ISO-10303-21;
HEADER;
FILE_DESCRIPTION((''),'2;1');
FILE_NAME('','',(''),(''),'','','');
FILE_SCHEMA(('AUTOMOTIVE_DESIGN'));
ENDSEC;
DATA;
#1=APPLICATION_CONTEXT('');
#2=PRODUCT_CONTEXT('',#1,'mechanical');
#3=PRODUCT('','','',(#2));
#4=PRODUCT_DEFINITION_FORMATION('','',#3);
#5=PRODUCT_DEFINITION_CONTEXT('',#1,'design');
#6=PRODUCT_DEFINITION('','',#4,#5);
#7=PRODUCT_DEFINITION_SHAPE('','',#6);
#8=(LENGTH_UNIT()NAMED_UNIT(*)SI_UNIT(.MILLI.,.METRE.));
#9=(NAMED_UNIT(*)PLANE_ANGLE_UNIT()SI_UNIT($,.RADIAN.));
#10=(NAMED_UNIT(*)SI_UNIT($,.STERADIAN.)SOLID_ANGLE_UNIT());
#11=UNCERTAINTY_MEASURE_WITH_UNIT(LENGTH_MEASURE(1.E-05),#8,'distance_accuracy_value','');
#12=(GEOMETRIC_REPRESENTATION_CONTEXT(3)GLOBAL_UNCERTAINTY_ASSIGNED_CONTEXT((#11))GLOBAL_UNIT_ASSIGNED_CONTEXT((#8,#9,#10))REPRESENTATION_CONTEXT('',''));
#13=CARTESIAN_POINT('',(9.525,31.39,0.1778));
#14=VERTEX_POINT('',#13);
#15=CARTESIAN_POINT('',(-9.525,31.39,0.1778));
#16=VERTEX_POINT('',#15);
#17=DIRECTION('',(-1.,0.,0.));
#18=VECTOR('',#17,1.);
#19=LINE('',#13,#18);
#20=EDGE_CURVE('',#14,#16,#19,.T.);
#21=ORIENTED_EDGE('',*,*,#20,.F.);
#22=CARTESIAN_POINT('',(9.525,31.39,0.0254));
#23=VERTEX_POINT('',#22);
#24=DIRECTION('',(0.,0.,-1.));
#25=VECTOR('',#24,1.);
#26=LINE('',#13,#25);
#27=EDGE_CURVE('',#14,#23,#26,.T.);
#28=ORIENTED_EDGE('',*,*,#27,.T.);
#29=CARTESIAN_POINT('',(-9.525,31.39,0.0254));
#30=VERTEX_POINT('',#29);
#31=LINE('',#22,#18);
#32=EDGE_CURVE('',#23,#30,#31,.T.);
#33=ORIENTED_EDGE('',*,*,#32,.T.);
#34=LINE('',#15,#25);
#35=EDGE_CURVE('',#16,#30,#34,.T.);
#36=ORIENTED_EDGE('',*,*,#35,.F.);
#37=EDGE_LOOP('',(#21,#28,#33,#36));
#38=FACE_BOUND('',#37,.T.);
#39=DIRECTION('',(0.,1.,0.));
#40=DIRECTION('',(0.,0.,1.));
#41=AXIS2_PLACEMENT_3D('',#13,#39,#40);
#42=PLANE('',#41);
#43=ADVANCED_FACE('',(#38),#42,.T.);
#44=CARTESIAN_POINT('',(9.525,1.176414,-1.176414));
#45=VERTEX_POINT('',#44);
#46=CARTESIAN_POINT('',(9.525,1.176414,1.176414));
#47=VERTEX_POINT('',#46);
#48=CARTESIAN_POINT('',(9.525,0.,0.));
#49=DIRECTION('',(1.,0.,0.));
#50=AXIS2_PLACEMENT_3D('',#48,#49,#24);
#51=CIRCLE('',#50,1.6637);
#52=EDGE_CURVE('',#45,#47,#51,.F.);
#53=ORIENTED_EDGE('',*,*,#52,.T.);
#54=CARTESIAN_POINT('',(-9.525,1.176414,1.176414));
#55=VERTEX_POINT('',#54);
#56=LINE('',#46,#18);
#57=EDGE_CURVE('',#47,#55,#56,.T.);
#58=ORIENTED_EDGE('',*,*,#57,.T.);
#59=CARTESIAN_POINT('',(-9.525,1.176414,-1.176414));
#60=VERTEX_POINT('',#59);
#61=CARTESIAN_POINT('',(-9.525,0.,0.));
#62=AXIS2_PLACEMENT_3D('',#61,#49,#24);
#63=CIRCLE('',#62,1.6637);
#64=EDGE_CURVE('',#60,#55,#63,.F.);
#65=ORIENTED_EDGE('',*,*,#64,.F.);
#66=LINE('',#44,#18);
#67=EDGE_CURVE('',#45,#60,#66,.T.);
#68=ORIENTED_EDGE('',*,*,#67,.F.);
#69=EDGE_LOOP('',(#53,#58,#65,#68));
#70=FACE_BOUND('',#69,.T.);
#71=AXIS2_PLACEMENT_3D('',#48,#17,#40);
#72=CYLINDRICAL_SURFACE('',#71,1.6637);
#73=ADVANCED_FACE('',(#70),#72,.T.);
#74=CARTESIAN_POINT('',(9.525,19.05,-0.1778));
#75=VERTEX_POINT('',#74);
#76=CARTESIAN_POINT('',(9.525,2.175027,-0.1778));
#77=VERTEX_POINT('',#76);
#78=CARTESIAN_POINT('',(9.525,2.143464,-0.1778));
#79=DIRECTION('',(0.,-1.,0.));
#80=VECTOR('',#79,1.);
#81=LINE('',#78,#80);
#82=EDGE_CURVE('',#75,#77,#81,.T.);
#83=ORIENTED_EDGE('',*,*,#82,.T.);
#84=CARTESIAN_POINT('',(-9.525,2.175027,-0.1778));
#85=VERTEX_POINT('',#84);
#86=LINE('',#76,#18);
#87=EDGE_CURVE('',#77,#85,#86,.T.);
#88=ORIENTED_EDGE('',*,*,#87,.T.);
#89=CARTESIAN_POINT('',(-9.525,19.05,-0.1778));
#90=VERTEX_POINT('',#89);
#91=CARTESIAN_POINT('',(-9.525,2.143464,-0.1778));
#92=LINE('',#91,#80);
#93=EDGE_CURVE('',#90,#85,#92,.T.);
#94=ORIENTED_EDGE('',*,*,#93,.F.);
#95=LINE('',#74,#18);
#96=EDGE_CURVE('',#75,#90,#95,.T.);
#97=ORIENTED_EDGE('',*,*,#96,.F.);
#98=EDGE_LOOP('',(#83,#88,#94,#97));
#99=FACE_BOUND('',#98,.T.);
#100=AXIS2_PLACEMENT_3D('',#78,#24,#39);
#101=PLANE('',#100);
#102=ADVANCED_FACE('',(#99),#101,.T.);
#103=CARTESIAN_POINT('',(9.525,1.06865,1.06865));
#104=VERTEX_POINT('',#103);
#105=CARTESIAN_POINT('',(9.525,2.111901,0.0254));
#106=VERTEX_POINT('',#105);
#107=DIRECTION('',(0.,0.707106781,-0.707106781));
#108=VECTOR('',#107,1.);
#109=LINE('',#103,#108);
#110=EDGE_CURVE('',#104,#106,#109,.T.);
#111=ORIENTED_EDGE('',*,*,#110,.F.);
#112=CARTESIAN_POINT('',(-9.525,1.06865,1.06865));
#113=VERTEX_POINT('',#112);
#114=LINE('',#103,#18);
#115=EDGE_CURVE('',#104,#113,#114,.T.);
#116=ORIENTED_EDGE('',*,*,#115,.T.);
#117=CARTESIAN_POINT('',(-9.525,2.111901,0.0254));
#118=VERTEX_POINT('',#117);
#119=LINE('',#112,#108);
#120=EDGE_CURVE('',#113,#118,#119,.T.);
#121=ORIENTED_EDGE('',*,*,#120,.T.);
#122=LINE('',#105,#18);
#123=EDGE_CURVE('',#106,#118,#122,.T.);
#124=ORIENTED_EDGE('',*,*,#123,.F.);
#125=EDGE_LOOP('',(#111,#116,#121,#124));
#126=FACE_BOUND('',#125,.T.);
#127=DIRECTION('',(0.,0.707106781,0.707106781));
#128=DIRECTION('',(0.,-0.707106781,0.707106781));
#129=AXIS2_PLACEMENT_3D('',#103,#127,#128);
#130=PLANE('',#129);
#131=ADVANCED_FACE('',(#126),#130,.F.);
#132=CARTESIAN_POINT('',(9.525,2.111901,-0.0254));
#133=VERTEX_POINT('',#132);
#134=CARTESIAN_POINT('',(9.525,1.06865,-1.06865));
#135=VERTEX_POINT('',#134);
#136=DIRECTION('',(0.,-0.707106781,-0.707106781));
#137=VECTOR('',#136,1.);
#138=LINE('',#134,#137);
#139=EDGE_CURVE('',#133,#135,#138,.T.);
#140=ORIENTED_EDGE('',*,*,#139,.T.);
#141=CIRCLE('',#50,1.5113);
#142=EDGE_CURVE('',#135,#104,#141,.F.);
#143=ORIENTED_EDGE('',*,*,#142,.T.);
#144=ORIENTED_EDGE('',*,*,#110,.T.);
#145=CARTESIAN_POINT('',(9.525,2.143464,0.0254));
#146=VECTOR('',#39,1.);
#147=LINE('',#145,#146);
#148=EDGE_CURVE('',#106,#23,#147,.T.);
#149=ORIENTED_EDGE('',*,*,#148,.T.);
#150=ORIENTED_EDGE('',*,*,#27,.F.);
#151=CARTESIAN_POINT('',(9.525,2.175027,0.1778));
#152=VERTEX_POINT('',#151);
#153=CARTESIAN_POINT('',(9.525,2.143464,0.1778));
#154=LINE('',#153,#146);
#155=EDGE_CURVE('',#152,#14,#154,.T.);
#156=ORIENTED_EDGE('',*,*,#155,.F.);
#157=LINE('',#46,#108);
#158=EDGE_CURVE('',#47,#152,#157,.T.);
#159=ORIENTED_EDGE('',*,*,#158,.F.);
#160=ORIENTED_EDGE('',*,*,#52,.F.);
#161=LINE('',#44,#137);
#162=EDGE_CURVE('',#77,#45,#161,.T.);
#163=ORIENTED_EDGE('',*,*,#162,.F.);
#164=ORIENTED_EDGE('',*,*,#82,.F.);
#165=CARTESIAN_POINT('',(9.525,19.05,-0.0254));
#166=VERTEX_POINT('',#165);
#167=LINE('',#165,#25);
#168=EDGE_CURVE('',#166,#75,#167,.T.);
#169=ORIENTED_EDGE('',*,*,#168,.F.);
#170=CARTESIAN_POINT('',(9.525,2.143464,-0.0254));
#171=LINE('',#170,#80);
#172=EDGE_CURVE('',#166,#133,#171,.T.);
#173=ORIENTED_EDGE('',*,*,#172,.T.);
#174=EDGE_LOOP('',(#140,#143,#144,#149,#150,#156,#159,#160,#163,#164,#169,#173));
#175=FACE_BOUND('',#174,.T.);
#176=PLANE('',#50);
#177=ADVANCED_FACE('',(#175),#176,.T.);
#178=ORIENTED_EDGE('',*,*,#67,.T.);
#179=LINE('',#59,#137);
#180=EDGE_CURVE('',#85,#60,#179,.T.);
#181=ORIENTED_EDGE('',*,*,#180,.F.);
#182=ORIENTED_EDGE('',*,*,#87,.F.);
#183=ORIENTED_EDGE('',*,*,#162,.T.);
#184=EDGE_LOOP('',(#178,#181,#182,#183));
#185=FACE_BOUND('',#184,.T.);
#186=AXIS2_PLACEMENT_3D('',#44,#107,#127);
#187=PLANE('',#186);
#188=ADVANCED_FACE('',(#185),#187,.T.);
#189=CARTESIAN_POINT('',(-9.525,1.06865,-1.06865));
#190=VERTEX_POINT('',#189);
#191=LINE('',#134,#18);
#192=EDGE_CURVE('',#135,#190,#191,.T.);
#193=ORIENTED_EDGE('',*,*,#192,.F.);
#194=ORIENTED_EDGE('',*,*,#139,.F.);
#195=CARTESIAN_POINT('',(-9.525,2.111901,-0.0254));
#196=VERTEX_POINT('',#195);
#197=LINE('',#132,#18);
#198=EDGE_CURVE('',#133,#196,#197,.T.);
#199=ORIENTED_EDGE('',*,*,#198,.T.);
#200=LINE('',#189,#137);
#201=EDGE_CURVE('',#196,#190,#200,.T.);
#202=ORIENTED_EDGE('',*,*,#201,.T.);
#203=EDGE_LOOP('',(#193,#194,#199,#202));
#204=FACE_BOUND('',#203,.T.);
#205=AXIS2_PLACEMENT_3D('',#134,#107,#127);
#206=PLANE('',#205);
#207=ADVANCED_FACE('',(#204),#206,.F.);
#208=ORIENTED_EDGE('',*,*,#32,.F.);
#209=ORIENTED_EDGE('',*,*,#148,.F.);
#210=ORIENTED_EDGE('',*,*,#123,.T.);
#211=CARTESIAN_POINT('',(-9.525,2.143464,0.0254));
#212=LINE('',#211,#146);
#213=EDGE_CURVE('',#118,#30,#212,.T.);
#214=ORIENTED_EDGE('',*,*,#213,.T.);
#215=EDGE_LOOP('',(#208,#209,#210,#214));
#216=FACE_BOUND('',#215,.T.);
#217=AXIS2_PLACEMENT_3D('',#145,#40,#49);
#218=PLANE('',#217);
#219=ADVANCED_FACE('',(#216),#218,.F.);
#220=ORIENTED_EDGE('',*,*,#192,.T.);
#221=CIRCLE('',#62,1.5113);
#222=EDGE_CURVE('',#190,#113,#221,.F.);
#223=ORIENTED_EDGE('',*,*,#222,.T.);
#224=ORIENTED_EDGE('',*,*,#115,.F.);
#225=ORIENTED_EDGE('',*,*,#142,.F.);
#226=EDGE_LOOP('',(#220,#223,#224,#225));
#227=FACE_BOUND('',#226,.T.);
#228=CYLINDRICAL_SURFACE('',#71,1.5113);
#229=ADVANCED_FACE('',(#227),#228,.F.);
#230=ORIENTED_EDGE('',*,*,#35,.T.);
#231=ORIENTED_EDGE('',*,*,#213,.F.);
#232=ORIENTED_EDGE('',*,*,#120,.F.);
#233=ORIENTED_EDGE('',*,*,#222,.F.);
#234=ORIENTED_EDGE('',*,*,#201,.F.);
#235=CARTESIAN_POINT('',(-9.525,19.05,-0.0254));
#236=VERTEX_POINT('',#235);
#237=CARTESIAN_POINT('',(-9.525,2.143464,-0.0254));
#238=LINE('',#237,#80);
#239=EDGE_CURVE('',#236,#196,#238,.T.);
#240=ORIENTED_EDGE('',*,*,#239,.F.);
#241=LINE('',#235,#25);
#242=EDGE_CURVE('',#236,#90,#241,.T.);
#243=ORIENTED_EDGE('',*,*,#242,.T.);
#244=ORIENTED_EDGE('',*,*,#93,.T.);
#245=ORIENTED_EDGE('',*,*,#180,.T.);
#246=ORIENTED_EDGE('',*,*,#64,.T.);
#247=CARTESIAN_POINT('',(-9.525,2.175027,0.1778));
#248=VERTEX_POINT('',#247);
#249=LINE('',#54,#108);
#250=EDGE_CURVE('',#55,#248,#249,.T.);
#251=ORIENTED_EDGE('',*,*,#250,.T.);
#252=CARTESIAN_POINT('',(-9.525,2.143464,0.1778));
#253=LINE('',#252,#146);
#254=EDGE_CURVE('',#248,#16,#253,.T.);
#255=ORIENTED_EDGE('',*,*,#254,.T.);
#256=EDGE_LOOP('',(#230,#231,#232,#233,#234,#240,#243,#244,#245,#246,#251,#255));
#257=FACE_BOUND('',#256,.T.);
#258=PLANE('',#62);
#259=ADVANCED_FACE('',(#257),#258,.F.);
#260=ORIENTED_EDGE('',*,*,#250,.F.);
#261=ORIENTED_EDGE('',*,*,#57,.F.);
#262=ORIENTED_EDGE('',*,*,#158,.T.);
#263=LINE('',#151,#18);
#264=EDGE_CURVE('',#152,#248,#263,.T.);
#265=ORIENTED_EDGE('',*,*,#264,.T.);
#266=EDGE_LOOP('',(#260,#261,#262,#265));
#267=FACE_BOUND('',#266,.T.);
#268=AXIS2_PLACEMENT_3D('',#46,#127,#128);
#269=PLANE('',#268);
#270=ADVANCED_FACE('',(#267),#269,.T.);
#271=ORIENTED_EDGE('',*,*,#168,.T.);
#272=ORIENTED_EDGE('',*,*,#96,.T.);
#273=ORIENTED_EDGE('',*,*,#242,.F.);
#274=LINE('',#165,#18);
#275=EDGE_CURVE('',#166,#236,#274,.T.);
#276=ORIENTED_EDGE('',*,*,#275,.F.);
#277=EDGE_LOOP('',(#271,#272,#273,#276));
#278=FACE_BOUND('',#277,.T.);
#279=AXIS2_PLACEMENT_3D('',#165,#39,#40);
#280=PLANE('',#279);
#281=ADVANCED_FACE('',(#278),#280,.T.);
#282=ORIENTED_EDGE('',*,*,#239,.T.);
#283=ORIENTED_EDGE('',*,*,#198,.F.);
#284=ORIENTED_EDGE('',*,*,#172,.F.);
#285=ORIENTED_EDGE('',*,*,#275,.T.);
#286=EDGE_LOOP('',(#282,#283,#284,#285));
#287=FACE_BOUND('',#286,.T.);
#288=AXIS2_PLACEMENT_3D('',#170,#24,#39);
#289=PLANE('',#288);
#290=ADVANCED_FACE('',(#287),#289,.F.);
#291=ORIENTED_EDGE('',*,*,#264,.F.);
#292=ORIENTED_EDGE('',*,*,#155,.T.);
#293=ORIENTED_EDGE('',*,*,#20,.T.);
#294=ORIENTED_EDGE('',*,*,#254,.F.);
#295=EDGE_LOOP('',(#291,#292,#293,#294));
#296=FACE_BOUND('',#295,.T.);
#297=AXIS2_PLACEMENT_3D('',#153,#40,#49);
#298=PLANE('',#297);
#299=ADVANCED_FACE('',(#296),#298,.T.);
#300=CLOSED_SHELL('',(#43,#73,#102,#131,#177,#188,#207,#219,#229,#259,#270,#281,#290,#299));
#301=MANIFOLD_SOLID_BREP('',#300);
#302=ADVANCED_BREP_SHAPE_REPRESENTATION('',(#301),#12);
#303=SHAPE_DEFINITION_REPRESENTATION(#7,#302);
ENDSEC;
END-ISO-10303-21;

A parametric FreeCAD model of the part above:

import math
import FreeCAD as App
import Part
import Sketcher
from FreeCAD import Vector
Q = App.Units.Quantity

doc = App.newDocument("Part")
params = doc.addObject("Spreadsheet::Sheet", "Params")
for row, (alias, value) in enumerate([
    ("sketch1_height", "0.006 in"),
    ("pad1_length", "0.75 in"),
], start=1):
    params.set(f"A{row}", alias)
    params.set(f"B{row}", "=" + value)
    params.setAlias(f"B{row}", alias)

body = doc.addObject("PartDesign::Body", "Body")

sketch1 = body.newObject("Sketcher::SketchObject", "Sketch")
sketch1.AttachmentSupport = (doc.getObject("YZ_Plane"), [""])
sketch1.MapMode = "FlatFace"
sketch1.addGeometry([
    Part.LineSegment(Vector(31.39, 0.1778, 0), Vector(2.175027, 0.1778, 0)),
    Part.LineSegment(Vector(2.175027, 0.1778, 0), Vector(1.176414, 1.176414, 0)),
    Part.ArcOfCircle(Part.Circle(Vector(0, 0, 0), Vector(0, 0, 1), 1.6637), math.radians(45), math.radians(315)),
    Part.LineSegment(Vector(1.176414, -1.176414, 0), Vector(2.175027, -0.1778, 0)),
    Part.LineSegment(Vector(2.175027, -0.1778, 0), Vector(19.05, -0.1778, 0)),
    Part.LineSegment(Vector(19.05, -0.1778, 0), Vector(19.05, -0.0254, 0)),
    Part.LineSegment(Vector(19.05, -0.0254, 0), Vector(2.111901, -0.0254, 0)),
    Part.LineSegment(Vector(2.111901, -0.0254, 0), Vector(1.06865, -1.06865, 0)),
    Part.ArcOfCircle(Part.Circle(Vector(0, 0, 0), Vector(0, 0, 1), 1.5113), math.radians(45), math.radians(315)),
    Part.LineSegment(Vector(1.06865, 1.06865, 0), Vector(2.111901, 0.0254, 0)),
    Part.LineSegment(Vector(2.111901, 0.0254, 0), Vector(31.39, 0.0254, 0)),
    Part.LineSegment(Vector(31.39, 0.0254, 0), Vector(31.39, 0.1778, 0)),
], False)
sketch1.addConstraint([
    Sketcher.Constraint("Coincident", 0, 2, 1, 1),
    Sketcher.Constraint("Tangent", 1, 2, 2, 1),
    Sketcher.Constraint("Tangent", 2, 2, 3, 1),
    Sketcher.Constraint("Coincident", 3, 2, 4, 1),
    Sketcher.Constraint("Coincident", 4, 2, 5, 1),
    Sketcher.Constraint("Coincident", 5, 2, 6, 1),
    Sketcher.Constraint("Coincident", 6, 2, 7, 1),
    Sketcher.Constraint("Tangent", 7, 2, 8, 2),
    Sketcher.Constraint("Tangent", 8, 1, 9, 1),
    Sketcher.Constraint("Coincident", 9, 2, 10, 1),
    Sketcher.Constraint("Coincident", 10, 2, 11, 1),
    Sketcher.Constraint("Coincident", 11, 2, 0, 1),
    Sketcher.Constraint("Horizontal", 0),
    Sketcher.Constraint("Horizontal", 4),
    Sketcher.Constraint("Vertical", 5),
    Sketcher.Constraint("Horizontal", 6),
    Sketcher.Constraint("Horizontal", 10),
    Sketcher.Constraint("Vertical", 11),
    Sketcher.Constraint("Coincident", 2, 3, -1, 1),
    Sketcher.Constraint("Coincident", 8, 3, -1, 1),
    Sketcher.Constraint("Symmetric", 0, 2, 3, 2, -1),
    Sketcher.Constraint("Symmetric", 6, 2, 9, 2, -1),
    Sketcher.Constraint("Perpendicular", 1, 3),
    Sketcher.Constraint("Parallel", 3, 7),
    Sketcher.Constraint("Radius", 2, Q("0.0655 in")),
    Sketcher.Constraint("Radius", 8, Q("0.0595 in")),
    Sketcher.Constraint("DistanceY", 5, 1, 5, 2, Q("0.006 in")),
    Sketcher.Constraint("DistanceX", -1, 1, 4, 2, Q("0.75 in")),
    Sketcher.Constraint("DistanceY", -1, 1, 0, 2, Q("0.007 in")),
    Sketcher.Constraint("DistanceX", 10, 1, 10, 2, Q("29.278099 mm")),
])
sketch1.setExpression("Constraints[26]", "Params.sketch1_height")
pad1 = body.newObject("PartDesign::Pad", "Pad")
pad1.Profile = sketch1
pad1.setExpression("Length", "Params.pad1_length")
pad1.Midplane = True

doc.recompute()
